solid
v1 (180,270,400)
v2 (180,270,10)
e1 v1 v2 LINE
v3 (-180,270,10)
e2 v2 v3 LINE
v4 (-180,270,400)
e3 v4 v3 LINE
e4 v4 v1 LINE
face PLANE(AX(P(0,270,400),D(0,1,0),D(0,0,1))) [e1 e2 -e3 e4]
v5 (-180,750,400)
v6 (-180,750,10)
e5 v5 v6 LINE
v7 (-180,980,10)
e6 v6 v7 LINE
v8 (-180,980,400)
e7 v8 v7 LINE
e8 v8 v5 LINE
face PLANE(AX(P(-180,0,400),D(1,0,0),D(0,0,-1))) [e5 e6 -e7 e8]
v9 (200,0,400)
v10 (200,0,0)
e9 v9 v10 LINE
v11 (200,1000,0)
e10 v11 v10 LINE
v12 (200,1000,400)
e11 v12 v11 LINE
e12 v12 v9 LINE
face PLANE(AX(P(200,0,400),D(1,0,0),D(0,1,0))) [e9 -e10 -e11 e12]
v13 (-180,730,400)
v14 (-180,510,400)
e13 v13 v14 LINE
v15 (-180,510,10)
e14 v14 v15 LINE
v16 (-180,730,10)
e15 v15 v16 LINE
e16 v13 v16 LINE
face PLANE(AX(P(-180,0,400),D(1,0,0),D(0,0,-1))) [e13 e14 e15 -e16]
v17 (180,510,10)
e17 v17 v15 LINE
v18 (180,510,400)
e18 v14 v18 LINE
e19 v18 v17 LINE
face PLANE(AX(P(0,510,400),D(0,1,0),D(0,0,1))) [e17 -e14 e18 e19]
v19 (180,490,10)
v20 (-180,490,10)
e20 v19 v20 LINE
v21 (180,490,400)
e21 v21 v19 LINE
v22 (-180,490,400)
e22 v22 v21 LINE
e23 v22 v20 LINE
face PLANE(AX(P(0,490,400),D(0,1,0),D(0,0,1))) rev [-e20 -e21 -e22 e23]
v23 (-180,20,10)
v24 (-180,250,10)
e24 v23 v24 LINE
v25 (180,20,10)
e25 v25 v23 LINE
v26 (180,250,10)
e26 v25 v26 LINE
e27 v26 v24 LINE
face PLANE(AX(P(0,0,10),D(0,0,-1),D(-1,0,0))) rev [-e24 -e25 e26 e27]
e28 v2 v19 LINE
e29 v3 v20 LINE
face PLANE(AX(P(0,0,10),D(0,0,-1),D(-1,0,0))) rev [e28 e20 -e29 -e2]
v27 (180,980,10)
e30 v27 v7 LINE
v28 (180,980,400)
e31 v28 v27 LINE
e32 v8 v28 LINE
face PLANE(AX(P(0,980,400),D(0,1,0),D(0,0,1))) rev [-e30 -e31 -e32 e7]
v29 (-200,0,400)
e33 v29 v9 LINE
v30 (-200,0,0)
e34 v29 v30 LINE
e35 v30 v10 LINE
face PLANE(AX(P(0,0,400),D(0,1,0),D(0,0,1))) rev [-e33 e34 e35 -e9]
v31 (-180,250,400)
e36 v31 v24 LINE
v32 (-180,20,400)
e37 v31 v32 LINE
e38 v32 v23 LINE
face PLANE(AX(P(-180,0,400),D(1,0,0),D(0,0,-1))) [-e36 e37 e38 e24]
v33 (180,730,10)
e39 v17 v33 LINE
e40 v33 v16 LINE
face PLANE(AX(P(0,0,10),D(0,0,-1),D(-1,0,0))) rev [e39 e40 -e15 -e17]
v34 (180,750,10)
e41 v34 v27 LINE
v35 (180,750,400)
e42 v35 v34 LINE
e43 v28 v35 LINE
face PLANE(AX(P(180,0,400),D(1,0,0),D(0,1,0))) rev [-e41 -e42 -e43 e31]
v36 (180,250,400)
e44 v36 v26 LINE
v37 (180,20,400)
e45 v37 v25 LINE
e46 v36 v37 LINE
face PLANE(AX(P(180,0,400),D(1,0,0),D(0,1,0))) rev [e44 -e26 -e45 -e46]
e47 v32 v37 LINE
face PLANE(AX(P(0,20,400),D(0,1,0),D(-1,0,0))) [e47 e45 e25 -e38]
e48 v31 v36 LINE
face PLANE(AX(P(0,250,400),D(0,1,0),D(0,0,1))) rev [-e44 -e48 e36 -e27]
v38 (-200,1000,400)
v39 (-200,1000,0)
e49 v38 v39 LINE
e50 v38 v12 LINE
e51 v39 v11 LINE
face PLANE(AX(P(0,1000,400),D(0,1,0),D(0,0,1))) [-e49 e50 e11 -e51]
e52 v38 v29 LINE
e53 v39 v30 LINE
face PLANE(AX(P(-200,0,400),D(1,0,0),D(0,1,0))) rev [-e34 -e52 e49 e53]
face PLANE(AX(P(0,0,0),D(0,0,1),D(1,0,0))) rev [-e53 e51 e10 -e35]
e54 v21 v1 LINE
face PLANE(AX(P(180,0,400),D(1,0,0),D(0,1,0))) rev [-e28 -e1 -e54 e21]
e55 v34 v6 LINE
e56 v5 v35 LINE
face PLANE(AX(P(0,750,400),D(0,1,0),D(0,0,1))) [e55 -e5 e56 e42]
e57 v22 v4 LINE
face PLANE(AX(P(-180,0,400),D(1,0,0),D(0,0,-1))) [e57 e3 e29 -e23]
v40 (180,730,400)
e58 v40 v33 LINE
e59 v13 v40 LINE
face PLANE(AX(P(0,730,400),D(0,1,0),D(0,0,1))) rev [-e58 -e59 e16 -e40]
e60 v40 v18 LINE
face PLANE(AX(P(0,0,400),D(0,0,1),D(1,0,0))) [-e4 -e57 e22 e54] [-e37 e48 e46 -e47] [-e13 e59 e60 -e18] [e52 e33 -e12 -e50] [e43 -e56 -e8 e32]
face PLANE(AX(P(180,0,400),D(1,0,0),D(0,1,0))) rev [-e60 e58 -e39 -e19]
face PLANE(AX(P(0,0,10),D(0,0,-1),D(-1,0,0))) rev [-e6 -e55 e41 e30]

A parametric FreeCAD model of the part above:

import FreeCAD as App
import Part
import Sketcher

V = App.Vector

doc = App.newDocument("Part")
params = doc.addObject("Spreadsheet::Sheet", "Params")
for row, (alias, value) in enumerate([
    ("sketch1_width", "400 mm"),
    ("sketch1_width2", "360 mm"),
    ("sketch1_height", "1000 mm"),
    ("sketch1_height2", "230 mm"),
    ("sketch1_height3", "220 mm"),
    ("pad1_length", "400 mm"),
    ("sketch2_width", "400 mm"),
    ("sketch2_height", "1000 mm"),
    ("pad2_length", "10 mm"),
], start=1):
    params.set(f"A{row}", alias)
    params.set(f"B{row}", "=" + value)
    params.setAlias(f"B{row}", alias)

body = doc.addObject("PartDesign::Body", "Body")

sketch1 = doc.addObject("Sketcher::SketchObject", "Sketch")
body.addObject(sketch1)
sketch1.AttachmentSupport = (doc.XY_Plane, [""])
sketch1.MapMode = "FlatFace"
sketch1.addGeometry([
    Part.LineSegment(V(-200, 1000, 0), V(-200, 0, 0)),
    Part.LineSegment(V(-200, 0, 0), V(200, 0, 0)),
    Part.LineSegment(V(200, 0, 0), V(200, 1000, 0)),
    Part.LineSegment(V(200, 1000, 0), V(-200, 1000, 0)),
    Part.LineSegment(V(180, 20, 0), V(-180, 20, 0)),
    Part.LineSegment(V(-180, 20, 0), V(-180, 250, 0)),
    Part.LineSegment(V(-180, 250, 0), V(180, 250, 0)),
    Part.LineSegment(V(180, 250, 0), V(180, 20, 0)),
    Part.LineSegment(V(180, 490, 0), V(180, 270, 0)),
    Part.LineSegment(V(180, 270, 0), V(-180, 270, 0)),
    Part.LineSegment(V(-180, 270, 0), V(-180, 490, 0)),
    Part.LineSegment(V(-180, 490, 0), V(180, 490, 0)),
    Part.LineSegment(V(180, 730, 0), V(180, 510, 0)),
    Part.LineSegment(V(180, 510, 0), V(-180, 510, 0)),
    Part.LineSegment(V(-180, 510, 0), V(-180, 730, 0)),
    Part.LineSegment(V(-180, 730, 0), V(180, 730, 0)),
    Part.LineSegment(V(180, 980, 0), V(180, 750, 0)),
    Part.LineSegment(V(180, 750, 0), V(-180, 750, 0)),
    Part.LineSegment(V(-180, 750, 0), V(-180, 980, 0)),
    Part.LineSegment(V(-180, 980, 0), V(180, 980, 0)),
], False)
sketch1.addConstraint([
    Sketcher.Constraint("Coincident", 0, 2, 1, 1),
    Sketcher.Constraint("Coincident", 1, 2, 2, 1),
    Sketcher.Constraint("Coincident", 2, 2, 3, 1),
    Sketcher.Constraint("Coincident", 3, 2, 0, 1),
    Sketcher.Constraint("Coincident", 4, 2, 5, 1),
    Sketcher.Constraint("Coincident", 5, 2, 6, 1),
    Sketcher.Constraint("Coincident", 6, 2, 7, 1),
    Sketcher.Constraint("Coincident", 7, 2, 4, 1),
    Sketcher.Constraint("Coincident", 8, 2, 9, 1),
    Sketcher.Constraint("Coincident", 9, 2, 10, 1),
    Sketcher.Constraint("Coincident", 10, 2, 11, 1),
    Sketcher.Constraint("Coincident", 11, 2, 8, 1),
    Sketcher.Constraint("Coincident", 12, 2, 13, 1),
    Sketcher.Constraint("Coincident", 13, 2, 14, 1),
    Sketcher.Constraint("Coincident", 14, 2, 15, 1),
    Sketcher.Constraint("Coincident", 15, 2, 12, 1),
    Sketcher.Constraint("Coincident", 16, 2, 17, 1),
    Sketcher.Constraint("Coincident", 17, 2, 18, 1),
    Sketcher.Constraint("Coincident", 18, 2, 19, 1),
    Sketcher.Constraint("Coincident", 19, 2, 16, 1),
    Sketcher.Constraint("Vertical", 0),
    Sketcher.Constraint("Horizontal", 1),
    Sketcher.Constraint("Vertical", 2),
    Sketcher.Constraint("Horizontal", 3),
    Sketcher.Constraint("Horizontal", 4),
    Sketcher.Constraint("Vertical", 5),
    Sketcher.Constraint("Horizontal", 6),
    Sketcher.Constraint("Vertical", 7),
    Sketcher.Constraint("Vertical", 8),
    Sketcher.Constraint("Horizontal", 9),
    Sketcher.Constraint("Vertical", 10),
    Sketcher.Constraint("Horizontal", 11),
    Sketcher.Constraint("Vertical", 12),
    Sketcher.Constraint("Horizontal", 13),
    Sketcher.Constraint("Vertical", 14),
    Sketcher.Constraint("Horizontal", 15),
    Sketcher.Constraint("Vertical", 16),
    Sketcher.Constraint("Horizontal", 17),
    Sketcher.Constraint("Vertical", 18),
    Sketcher.Constraint("Horizontal", 19),
    Sketcher.Constraint("Symmetric", 0, 2, 1, 2, -1, 1),
    Sketcher.Constraint("Vertical", 7, 2, 8, 2),
    Sketcher.Constraint("Vertical", 5, 2, 9, 2),
    Sketcher.Constraint("Vertical", 11, 2, 12, 2),
    Sketcher.Constraint("Vertical", 10, 2, 13, 2),
    Sketcher.Constraint("Vertical", 15, 2, 16, 2),
    Sketcher.Constraint("Vertical", 14, 2, 17, 2),
    Sketcher.Constraint("Equal", 10, 12),
    Sketcher.Constraint("Equal", 7, 16),
    Sketcher.Constraint("DistanceX", 1, 1, 1, 2, 400.0),
    Sketcher.Constraint("DistanceX", 4, 2, 4, 1, 360.0),
    Sketcher.Constraint("DistanceY", 0, 2, 0, 1, 1000.0),
    Sketcher.Constraint("DistanceY", 5, 1, 5, 2, 230.0),
    Sketcher.Constraint("DistanceY", 8, 2, 8, 1, 220.0),
    Sketcher.Constraint("DistanceX", 4, 2, -1, 1, 180.0),
    Sketcher.Constraint("DistanceY", -1, 1, 4, 2, 20.0),
    Sketcher.Constraint("DistanceY", -1, 1, 8, 2, 270.0),
    Sketcher.Constraint("DistanceY", -1, 1, 12, 2, 510.0),
    Sketcher.Constraint("DistanceY", -1, 1, 16, 2, 750.0),
])
sketch1.setExpression("Constraints[49]", "Params.sketch1_width")
sketch1.setExpression("Constraints[50]", "Params.sketch1_width2")
sketch1.setExpression("Constraints[51]", "Params.sketch1_height")
sketch1.setExpression("Constraints[52]", "Params.sketch1_height2")
sketch1.setExpression("Constraints[53]", "Params.sketch1_height3")
pad1 = doc.addObject("PartDesign::Pad", "Pad")
body.addObject(pad1)
pad1.Profile = sketch1
pad1.setExpression("Length", "Params.pad1_length")

sketch2 = doc.addObject("Sketcher::SketchObject", "Sketch001")
body.addObject(sketch2)
sketch2.AttachmentSupport = (doc.XY_Plane, [""])
sketch2.MapMode = "FlatFace"
sketch2.addGeometry([
    Part.LineSegment(V(200, 1000, 0), V(200, 0, 0)),
    Part.LineSegment(V(200, 0, 0), V(-200, 0, 0)),
    Part.LineSegment(V(-200, 0, 0), V(-200, 1000, 0)),
    Part.LineSegment(V(-200, 1000, 0), V(200, 1000, 0)),
], False)
sketch2.addConstraint([
    Sketcher.Constraint("Coincident", 0, 2, 1, 1),
    Sketcher.Constraint("Coincident", 1, 2, 2, 1),
    Sketcher.Constraint("Coincident", 2, 2, 3, 1),
    Sketcher.Constraint("Coincident", 3, 2, 0, 1),
    Sketcher.Constraint("Vertical", 0),
    Sketcher.Constraint("Horizontal", 1),
    Sketcher.Constraint("Vertical", 2),
    Sketcher.Constraint("Horizontal", 3),
    Sketcher.Constraint("Symmetric", 0, 2, 1, 2, -1, 1),
    Sketcher.Constraint("DistanceX", 1, 2, 1, 1, 400.0),
    Sketcher.Constraint("DistanceY", 0, 2, 0, 1, 1000.0),
])
sketch2.setExpression("Constraints[9]", "Params.sketch2_width")
sketch2.setExpression("Constraints[10]", "Params.sketch2_height")
pad2 = doc.addObject("PartDesign::Pad", "Pad001")
body.addObject(pad2)
pad2.Profile = sketch2
pad2.setExpression("Length", "Params.pad2_length")

doc.recompute()
